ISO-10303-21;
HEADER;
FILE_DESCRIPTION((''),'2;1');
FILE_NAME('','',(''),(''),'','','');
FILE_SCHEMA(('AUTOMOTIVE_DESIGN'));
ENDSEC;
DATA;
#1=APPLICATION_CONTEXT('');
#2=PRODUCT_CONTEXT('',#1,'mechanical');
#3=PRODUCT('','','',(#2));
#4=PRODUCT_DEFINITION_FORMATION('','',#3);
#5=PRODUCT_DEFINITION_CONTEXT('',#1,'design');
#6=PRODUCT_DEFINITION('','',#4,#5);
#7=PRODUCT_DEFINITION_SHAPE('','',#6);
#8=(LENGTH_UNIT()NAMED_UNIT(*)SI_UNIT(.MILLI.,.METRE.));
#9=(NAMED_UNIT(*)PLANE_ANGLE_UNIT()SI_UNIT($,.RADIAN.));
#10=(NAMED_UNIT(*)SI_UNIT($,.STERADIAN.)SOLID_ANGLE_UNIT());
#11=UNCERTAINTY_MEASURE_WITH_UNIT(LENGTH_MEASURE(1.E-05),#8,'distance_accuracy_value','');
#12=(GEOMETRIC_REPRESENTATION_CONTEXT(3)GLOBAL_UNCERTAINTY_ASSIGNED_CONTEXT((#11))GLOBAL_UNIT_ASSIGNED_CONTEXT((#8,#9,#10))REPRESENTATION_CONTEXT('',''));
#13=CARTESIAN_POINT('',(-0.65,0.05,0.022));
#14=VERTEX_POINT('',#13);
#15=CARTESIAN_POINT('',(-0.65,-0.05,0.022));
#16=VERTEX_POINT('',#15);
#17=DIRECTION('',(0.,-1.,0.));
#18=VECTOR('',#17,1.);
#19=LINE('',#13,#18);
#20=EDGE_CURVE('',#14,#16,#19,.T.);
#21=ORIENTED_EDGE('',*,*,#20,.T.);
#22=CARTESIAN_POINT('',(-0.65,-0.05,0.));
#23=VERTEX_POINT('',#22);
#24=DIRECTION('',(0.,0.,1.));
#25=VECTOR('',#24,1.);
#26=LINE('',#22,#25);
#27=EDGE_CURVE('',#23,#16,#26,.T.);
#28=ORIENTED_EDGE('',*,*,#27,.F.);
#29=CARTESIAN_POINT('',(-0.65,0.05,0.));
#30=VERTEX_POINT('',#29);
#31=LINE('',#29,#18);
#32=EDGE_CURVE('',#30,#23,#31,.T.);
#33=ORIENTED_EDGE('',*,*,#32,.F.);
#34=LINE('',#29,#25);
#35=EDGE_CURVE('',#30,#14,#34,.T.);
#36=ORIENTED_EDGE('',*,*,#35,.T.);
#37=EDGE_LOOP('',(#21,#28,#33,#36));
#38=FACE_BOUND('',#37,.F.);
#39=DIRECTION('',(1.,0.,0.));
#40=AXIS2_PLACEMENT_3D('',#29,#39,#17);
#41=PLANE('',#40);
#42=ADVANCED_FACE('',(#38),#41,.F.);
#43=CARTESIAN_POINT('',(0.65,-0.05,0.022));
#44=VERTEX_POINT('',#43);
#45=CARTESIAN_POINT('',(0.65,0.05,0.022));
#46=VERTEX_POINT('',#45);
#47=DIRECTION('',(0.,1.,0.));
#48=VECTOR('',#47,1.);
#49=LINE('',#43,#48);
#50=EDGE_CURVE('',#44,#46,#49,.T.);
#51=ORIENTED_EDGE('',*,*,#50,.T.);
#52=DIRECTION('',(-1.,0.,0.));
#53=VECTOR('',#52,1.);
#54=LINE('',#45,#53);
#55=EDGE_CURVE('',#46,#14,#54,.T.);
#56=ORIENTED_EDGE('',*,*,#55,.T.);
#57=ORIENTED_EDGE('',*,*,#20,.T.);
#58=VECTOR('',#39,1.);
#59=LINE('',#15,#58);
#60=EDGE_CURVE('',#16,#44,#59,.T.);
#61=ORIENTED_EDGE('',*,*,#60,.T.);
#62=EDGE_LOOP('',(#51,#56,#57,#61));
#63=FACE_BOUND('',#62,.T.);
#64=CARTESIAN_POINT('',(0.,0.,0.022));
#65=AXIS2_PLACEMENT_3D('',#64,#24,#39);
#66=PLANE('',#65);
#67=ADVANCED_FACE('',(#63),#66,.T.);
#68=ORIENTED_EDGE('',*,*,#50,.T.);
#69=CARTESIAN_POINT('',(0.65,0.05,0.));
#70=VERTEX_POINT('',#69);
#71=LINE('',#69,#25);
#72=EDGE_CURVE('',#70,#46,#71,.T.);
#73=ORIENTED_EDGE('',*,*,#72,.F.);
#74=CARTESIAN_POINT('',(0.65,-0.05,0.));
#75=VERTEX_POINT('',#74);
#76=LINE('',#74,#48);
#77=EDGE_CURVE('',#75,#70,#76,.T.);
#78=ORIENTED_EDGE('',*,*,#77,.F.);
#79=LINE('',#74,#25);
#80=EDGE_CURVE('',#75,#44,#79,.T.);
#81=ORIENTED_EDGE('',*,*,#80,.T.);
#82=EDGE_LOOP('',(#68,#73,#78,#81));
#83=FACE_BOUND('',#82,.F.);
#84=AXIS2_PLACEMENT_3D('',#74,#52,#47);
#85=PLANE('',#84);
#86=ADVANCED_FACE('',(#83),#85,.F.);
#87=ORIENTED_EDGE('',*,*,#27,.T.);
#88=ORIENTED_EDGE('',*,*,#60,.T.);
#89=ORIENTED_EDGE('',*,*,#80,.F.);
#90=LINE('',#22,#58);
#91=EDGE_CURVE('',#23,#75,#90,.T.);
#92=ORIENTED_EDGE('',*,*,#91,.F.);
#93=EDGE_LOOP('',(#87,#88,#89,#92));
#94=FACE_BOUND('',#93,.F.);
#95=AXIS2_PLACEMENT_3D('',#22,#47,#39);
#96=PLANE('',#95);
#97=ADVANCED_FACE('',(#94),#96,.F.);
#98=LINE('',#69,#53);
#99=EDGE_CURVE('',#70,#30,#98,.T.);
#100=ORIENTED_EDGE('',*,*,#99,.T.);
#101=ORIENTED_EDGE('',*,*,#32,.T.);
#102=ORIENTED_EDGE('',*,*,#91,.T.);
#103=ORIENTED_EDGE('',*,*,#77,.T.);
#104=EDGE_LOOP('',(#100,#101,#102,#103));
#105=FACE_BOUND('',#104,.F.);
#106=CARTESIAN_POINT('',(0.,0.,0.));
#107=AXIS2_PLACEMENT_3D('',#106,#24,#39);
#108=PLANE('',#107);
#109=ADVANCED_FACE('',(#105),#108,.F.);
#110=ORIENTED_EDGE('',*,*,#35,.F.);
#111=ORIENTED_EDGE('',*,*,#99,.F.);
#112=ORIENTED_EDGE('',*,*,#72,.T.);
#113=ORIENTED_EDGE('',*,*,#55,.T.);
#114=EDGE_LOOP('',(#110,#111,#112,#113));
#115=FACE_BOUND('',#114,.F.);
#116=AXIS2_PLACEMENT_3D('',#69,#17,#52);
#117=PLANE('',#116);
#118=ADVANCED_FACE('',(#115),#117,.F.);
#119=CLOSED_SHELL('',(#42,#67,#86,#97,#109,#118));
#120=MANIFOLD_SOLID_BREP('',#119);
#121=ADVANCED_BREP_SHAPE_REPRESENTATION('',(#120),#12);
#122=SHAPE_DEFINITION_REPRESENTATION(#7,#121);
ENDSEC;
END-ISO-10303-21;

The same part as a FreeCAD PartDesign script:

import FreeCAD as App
import Part
import Sketcher

V = App.Vector


def add_polygon(sketch, points):
    """Adds a closed chain of lines whose ends are joined by coincident constraints."""
    first, n = sketch.GeometryCount, len(points)
    for a, b in zip(points, points[1:] + points[:1]):
        sketch.addGeometry(Part.LineSegment(App.Vector(*a, 0), App.Vector(*b, 0)), False)
    for i in range(n):
        sketch.addConstraint(Sketcher.Constraint("Coincident", first + i, 2, first + (i + 1) % n, 1))

doc = App.newDocument("Part")
body = doc.addObject("PartDesign::Body", "Body")

# Sketch on XY plane
sketch1 = doc.addObject("Sketcher::SketchObject", "Sketch")
body.addObject(sketch1)
sketch1.AttachmentSupport = (doc.XY_Plane, [""])
sketch1.MapMode = "FlatFace"
add_polygon(sketch1, [(-0.65, 0.05), (-0.65, -0.05), (0.65, -0.05), (0.65, 0.05)])  # lines 0-3
sketch1.addConstraint(Sketcher.Constraint("Vertical", 0))
sketch1.addConstraint(Sketcher.Constraint("Horizontal", 1))
sketch1.addConstraint(Sketcher.Constraint("Vertical", 2))
sketch1.addConstraint(Sketcher.Constraint("Horizontal", 3))
sketch1.addConstraint(Sketcher.Constraint("Symmetric", 0, 2, 2, 2, -1, 1))
sketch1.addConstraint(Sketcher.Constraint("DistanceX", 0, 2, -1, 1, 0.65))
sketch1.addConstraint(Sketcher.Constraint("DistanceY", 0, 2, 0, 1, 0.1))
pad1 = doc.addObject("PartDesign::Pad", "Pad")
body.addObject(pad1)
pad1.Profile = sketch1
pad1.Length = 0.022

doc.recompute()
